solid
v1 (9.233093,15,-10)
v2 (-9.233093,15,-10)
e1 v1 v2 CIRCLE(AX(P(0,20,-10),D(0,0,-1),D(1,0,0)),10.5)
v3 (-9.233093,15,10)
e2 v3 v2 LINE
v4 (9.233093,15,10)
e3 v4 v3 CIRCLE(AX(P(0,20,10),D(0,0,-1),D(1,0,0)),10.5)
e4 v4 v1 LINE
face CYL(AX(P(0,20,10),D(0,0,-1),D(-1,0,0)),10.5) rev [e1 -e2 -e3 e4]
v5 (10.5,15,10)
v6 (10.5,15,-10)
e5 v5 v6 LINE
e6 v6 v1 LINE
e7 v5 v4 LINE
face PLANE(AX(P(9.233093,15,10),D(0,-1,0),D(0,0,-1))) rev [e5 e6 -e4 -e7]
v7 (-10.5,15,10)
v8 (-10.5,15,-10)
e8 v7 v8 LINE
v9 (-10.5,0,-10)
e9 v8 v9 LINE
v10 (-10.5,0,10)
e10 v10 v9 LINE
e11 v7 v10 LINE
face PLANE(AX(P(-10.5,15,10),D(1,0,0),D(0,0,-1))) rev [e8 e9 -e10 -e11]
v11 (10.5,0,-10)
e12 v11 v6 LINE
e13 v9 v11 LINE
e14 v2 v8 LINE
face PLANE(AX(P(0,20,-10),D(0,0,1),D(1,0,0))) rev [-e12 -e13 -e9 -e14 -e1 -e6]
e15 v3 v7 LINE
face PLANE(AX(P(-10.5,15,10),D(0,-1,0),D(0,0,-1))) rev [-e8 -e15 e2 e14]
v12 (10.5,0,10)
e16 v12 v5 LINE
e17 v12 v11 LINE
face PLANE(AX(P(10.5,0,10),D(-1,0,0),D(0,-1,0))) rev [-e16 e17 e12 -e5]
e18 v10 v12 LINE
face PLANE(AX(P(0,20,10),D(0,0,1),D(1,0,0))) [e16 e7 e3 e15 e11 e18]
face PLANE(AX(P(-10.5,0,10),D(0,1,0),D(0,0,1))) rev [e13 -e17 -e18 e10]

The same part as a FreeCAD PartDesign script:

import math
import FreeCAD as App
import Part
import Sketcher
from FreeCAD import Vector

doc = App.newDocument("Part")
body = doc.addObject("PartDesign::Body", "Body")

sketch1 = doc.addObject("Sketcher::SketchObject", "Sketch")
body.addObject(sketch1)
sketch1.AttachmentSupport = (doc.XY_Plane, [""])
sketch1.MapMode = "FlatFace"
sketch1.addGeometry([
    Part.LineSegment(Vector(-10.5, 15, 0), Vector(-10.5, 0, 0)),
    Part.LineSegment(Vector(-10.5, 0, 0), Vector(10.5, 0, 0)),
    Part.LineSegment(Vector(10.5, 0, 0), Vector(10.5, 15, 0)),
    Part.LineSegment(Vector(10.5, 15, 0), Vector(9.2, 15, 0)),
    Part.ArcOfCircle(Part.Circle(Vector(0, 20, 0), Vector(0, 0, 1), 10.5), math.radians(-152), math.radians(-28)),
    Part.LineSegment(Vector(-9.2, 15, 0), Vector(-10.5, 15, 0)),
], False)
sketch1.addConstraint([
    Sketcher.Constraint("Coincident", 0, 2, 1, 1),
    Sketcher.Constraint("Coincident", 1, 2, 2, 1),
    Sketcher.Constraint("Coincident", 2, 2, 3, 1),
    Sketcher.Constraint("Coincident", 3, 2, 4, 2),
    Sketcher.Constraint("Coincident", 4, 1, 5, 1),
    Sketcher.Constraint("Coincident", 5, 2, 0, 1),
    Sketcher.Constraint("Vertical", 0),
    Sketcher.Constraint("Horizontal", 1),
    Sketcher.Constraint("Vertical", 2),
    Sketcher.Constraint("Horizontal", 3),
    Sketcher.Constraint("Horizontal", 5),
    Sketcher.Constraint("Symmetric", 0, 2, 1, 2, -1, 1),
    Sketcher.Constraint("Symmetric", 3, 2, 4, 1, -2),
    Sketcher.Constraint("Radius", 4, 10.5),
    Sketcher.Constraint("DistanceX", 1, 1, 1, 2, 21.0),
    Sketcher.Constraint("DistanceY", 0, 2, 0, 1, 15.0),
    Sketcher.Constraint("DistanceY", -1, 1, 4, 3, 20.0),
])
pad1 = doc.addObject("PartDesign::Pad", "Pad")
body.addObject(pad1)
pad1.Profile = sketch1
pad1.Length = 20
pad1.Midplane = True

doc.recompute()
